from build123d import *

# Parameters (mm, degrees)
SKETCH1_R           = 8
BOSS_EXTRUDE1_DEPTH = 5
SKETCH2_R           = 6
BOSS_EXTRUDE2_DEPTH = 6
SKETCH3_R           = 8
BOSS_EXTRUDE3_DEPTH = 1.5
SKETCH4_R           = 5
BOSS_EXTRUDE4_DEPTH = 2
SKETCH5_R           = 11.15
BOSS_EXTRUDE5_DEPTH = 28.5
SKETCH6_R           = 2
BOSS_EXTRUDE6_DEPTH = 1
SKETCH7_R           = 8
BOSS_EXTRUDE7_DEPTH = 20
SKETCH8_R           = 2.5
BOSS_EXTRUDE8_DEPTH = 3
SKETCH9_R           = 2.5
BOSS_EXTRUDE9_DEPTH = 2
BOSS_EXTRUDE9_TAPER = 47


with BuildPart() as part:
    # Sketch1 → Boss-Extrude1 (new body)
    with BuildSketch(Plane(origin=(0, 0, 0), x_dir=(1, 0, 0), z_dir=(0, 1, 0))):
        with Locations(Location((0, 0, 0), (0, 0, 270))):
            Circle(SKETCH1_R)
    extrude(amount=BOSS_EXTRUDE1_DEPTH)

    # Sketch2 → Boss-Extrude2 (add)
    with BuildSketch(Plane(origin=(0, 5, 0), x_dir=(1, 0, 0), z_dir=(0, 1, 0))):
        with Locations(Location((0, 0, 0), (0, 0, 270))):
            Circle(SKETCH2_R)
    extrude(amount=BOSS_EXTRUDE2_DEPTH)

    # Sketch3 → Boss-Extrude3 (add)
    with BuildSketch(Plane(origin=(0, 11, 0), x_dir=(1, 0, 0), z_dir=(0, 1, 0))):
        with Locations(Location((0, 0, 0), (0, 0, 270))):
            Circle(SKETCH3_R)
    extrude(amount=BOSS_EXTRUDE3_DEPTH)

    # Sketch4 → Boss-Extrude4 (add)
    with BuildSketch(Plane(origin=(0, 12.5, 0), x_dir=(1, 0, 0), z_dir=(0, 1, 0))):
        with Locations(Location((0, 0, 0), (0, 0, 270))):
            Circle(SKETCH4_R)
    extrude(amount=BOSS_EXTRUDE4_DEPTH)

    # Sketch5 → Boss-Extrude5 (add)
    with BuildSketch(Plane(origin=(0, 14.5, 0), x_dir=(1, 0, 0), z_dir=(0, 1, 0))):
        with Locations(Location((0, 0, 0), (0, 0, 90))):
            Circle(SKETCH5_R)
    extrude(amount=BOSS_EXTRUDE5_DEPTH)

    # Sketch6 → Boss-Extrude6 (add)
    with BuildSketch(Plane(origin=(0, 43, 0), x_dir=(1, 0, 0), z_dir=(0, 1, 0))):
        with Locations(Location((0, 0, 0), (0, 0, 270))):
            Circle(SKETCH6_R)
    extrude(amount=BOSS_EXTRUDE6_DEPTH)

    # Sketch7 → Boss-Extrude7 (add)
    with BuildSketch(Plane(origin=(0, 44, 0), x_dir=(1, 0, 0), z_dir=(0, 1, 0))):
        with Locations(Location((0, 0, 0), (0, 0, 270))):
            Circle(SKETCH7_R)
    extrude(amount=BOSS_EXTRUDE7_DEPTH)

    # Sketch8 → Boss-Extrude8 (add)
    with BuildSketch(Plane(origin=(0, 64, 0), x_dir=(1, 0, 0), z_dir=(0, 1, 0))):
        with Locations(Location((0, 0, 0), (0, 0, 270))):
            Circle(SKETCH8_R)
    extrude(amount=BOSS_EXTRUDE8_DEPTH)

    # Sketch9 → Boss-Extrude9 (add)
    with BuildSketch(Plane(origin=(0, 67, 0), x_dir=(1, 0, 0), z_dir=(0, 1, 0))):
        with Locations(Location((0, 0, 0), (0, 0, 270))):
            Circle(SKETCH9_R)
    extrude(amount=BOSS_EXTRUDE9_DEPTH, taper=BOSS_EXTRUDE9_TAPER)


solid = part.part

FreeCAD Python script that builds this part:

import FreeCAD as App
import Part
import Sketcher

V = App.Vector
Q = App.Units.Quantity

doc = App.newDocument("Part")
body = doc.addObject("PartDesign::Body", "Body")

# Sketch on XZ plane
sketch1 = doc.addObject("Sketcher::SketchObject", "Sketch")
body.addObject(sketch1)
sketch1.AttachmentSupport = (doc.XZ_Plane, [""])
sketch1.MapMode = "FlatFace"
sketch1.addGeometry(Part.Circle(V(0, 0, 0), V(0, 0, 1), 8), False)
sketch1.addConstraint(Sketcher.Constraint("Coincident", 0, 3, -1, 1))
sketch1.addConstraint(Sketcher.Constraint("Diameter", 0, Q("16 mm")))
pad1 = doc.addObject("PartDesign::Pad", "Pad")
body.addObject(pad1)
pad1.Profile = sketch1
pad1.Length = 5
pad1.Reversed = True

# Sketch on XZ plane
sketch2 = doc.addObject("Sketcher::SketchObject", "Sketch001")
body.addObject(sketch2)
sketch2.AttachmentSupport = (doc.XZ_Plane, [""])
sketch2.MapMode = "FlatFace"
sketch2.AttachmentOffset = App.Placement(V(0, 0, -5), App.Rotation())
sketch2.addGeometry(Part.Circle(V(0, 0, 0), V(0, 0, 1), 6), False)
sketch2.addConstraint(Sketcher.Constraint("Coincident", 0, 3, -1, 1))
sketch2.addConstraint(Sketcher.Constraint("Diameter", 0, Q("12 mm")))
pad2 = doc.addObject("PartDesign::Pad", "Pad001")
body.addObject(pad2)
pad2.Profile = sketch2
pad2.Length = 6
pad2.Reversed = True

# Sketch on XZ plane
sketch3 = doc.addObject("Sketcher::SketchObject", "Sketch002")
body.addObject(sketch3)
sketch3.AttachmentSupport = (doc.XZ_Plane, [""])
sketch3.MapMode = "FlatFace"
sketch3.AttachmentOffset = App.Placement(V(0, 0, -11), App.Rotation())
sketch3.addGeometry(Part.Circle(V(0, 0, 0), V(0, 0, 1), 8), False)
sketch3.addConstraint(Sketcher.Constraint("Coincident", 0, 3, -1, 1))
sketch3.addConstraint(Sketcher.Constraint("Diameter", 0, Q("16 mm")))
pad3 = doc.addObject("PartDesign::Pad", "Pad002")
body.addObject(pad3)
pad3.Profile = sketch3
pad3.Length = 1.5
pad3.Reversed = True

# Sketch on XZ plane
sketch4 = doc.addObject("Sketcher::SketchObject", "Sketch003")
body.addObject(sketch4)
sketch4.AttachmentSupport = (doc.XZ_Plane, [""])
sketch4.MapMode = "FlatFace"
sketch4.AttachmentOffset = App.Placement(V(0, 0, -12.5), App.Rotation())
sketch4.addGeometry(Part.Circle(V(0, 0, 0), V(0, 0, 1), 5), False)
sketch4.addConstraint(Sketcher.Constraint("Coincident", 0, 3, -1, 1))
sketch4.addConstraint(Sketcher.Constraint("Diameter", 0, Q("10 mm")))
pad4 = doc.addObject("PartDesign::Pad", "Pad003")
body.addObject(pad4)
pad4.Profile = sketch4
pad4.Length = 2
pad4.Reversed = True

# Sketch on XZ plane
sketch5 = doc.addObject("Sketcher::SketchObject", "Sketch004")
body.addObject(sketch5)
sketch5.AttachmentSupport = (doc.XZ_Plane, [""])
sketch5.MapMode = "FlatFace"
sketch5.AttachmentOffset = App.Placement(V(0, 0, -14.5), App.Rotation())
sketch5.addGeometry(Part.Circle(V(0, 0, 0), V(0, 0, 1), 11), False)
sketch5.addConstraint(Sketcher.Constraint("Coincident", 0, 3, -1, 1))
sketch5.addConstraint(Sketcher.Constraint("Diameter", 0, Q("22.3 mm")))
pad5 = doc.addObject("PartDesign::Pad", "Pad004")
body.addObject(pad5)
pad5.Profile = sketch5
pad5.Length = 28.5
pad5.Reversed = True

# Sketch on XZ plane
sketch6 = doc.addObject("Sketcher::SketchObject", "Sketch005")
body.addObject(sketch6)
sketch6.AttachmentSupport = (doc.XZ_Plane, [""])
sketch6.MapMode = "FlatFace"
sketch6.AttachmentOffset = App.Placement(V(0, 0, -43), App.Rotation())
sketch6.addGeometry(Part.Circle(V(0, 0, 0), V(0, 0, 1), 2), False)
sketch6.addConstraint(Sketcher.Constraint("Coincident", 0, 3, -1, 1))
sketch6.addConstraint(Sketcher.Constraint("Diameter", 0, Q("4 mm")))
pad6 = doc.addObject("PartDesign::Pad", "Pad005")
body.addObject(pad6)
pad6.Profile = sketch6
pad6.Length = 1
pad6.Reversed = True

# Sketch on XZ plane
sketch7 = doc.addObject("Sketcher::SketchObject", "Sketch006")
body.addObject(sketch7)
sketch7.AttachmentSupport = (doc.XZ_Plane, [""])
sketch7.MapMode = "FlatFace"
sketch7.AttachmentOffset = App.Placement(V(0, 0, -44), App.Rotation())
sketch7.addGeometry(Part.Circle(V(0, 0, 0), V(0, 0, 1), 8), False)
sketch7.addConstraint(Sketcher.Constraint("Coincident", 0, 3, -1, 1))
sketch7.addConstraint(Sketcher.Constraint("Diameter", 0, Q("16 mm")))
pad7 = doc.addObject("PartDesign::Pad", "Pad006")
body.addObject(pad7)
pad7.Profile = sketch7
pad7.Length = 20
pad7.Reversed = True

# Sketch on XZ plane
sketch8 = doc.addObject("Sketcher::SketchObject", "Sketch007")
body.addObject(sketch8)
sketch8.AttachmentSupport = (doc.XZ_Plane, [""])
sketch8.MapMode = "FlatFace"
sketch8.AttachmentOffset = App.Placement(V(0, 0, -64), App.Rotation())
sketch8.addGeometry(Part.Circle(V(0, 0, 0), V(0, 0, 1), 2.5), False)
sketch8.addConstraint(Sketcher.Constraint("Coincident", 0, 3, -1, 1))
sketch8.addConstraint(Sketcher.Constraint("Diameter", 0, Q("5 mm")))
pad8 = doc.addObject("PartDesign::Pad", "Pad007")
body.addObject(pad8)
pad8.Profile = sketch8
pad8.Length = 3
pad8.Reversed = True

# Sketch on XZ plane
sketch9 = doc.addObject("Sketcher::SketchObject", "Sketch008")
body.addObject(sketch9)
sketch9.AttachmentSupport = (doc.XZ_Plane, [""])
sketch9.MapMode = "FlatFace"
sketch9.AttachmentOffset = App.Placement(V(0, 0, -67), App.Rotation())
sketch9.addGeometry(Part.Circle(V(0, 0, 0), V(0, 0, 1), 2.5), False)
sketch9.addConstraint(Sketcher.Constraint("Coincident", 0, 3, -1, 1))
sketch9.addConstraint(Sketcher.Constraint("Diameter", 0, Q("5 mm")))
pad9 = doc.addObject("PartDesign::Pad", "Pad008")
body.addObject(pad9)
pad9.Profile = sketch9
pad9.Length = 2
pad9.Reversed = True
pad9.TaperAngle = -47

doc.recompute()
